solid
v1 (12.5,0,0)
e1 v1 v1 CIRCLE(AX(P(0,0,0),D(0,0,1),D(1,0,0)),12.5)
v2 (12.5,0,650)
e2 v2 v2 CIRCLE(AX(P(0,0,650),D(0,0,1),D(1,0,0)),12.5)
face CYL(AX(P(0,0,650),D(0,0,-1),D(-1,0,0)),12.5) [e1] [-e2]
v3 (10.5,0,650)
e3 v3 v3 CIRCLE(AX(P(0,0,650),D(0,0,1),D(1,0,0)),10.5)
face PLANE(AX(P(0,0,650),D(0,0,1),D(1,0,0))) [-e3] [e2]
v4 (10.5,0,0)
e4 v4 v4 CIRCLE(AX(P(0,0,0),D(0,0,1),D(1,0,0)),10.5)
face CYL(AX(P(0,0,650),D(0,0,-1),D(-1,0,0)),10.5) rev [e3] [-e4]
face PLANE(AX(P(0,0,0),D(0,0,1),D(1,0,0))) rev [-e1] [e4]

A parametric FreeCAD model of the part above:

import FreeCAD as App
import Part
import Sketcher

doc = App.newDocument("Part")
body = doc.addObject("PartDesign::Body", "Body")

# Sketch on XY plane
sketch1 = body.newObject("Sketcher::SketchObject", "Sketch")
sketch1.AttachmentSupport = (doc.getObject("XY_Plane"), [""])
sketch1.MapMode = "FlatFace"
sketch1.addGeometry(Part.Circle(App.Vector(0, 0, 0), App.Vector(0, 0, 1), 12), False)
sketch1.addGeometry(Part.Circle(App.Vector(0, 0, 0), App.Vector(0, 0, 1), 10), False)
sketch1.addConstraint(Sketcher.Constraint("Coincident", 0, 3, -1, 1))
sketch1.addConstraint(Sketcher.Constraint("Coincident", 1, 3, -1, 1))
sketch1.addConstraint(Sketcher.Constraint("Diameter", 0, 25.0))
sketch1.addConstraint(Sketcher.Constraint("Diameter", 1, 21.0))
pad1 = body.newObject("PartDesign::Pad", "Pad")
pad1.Profile = sketch1
pad1.Length = 650

doc.recompute()
